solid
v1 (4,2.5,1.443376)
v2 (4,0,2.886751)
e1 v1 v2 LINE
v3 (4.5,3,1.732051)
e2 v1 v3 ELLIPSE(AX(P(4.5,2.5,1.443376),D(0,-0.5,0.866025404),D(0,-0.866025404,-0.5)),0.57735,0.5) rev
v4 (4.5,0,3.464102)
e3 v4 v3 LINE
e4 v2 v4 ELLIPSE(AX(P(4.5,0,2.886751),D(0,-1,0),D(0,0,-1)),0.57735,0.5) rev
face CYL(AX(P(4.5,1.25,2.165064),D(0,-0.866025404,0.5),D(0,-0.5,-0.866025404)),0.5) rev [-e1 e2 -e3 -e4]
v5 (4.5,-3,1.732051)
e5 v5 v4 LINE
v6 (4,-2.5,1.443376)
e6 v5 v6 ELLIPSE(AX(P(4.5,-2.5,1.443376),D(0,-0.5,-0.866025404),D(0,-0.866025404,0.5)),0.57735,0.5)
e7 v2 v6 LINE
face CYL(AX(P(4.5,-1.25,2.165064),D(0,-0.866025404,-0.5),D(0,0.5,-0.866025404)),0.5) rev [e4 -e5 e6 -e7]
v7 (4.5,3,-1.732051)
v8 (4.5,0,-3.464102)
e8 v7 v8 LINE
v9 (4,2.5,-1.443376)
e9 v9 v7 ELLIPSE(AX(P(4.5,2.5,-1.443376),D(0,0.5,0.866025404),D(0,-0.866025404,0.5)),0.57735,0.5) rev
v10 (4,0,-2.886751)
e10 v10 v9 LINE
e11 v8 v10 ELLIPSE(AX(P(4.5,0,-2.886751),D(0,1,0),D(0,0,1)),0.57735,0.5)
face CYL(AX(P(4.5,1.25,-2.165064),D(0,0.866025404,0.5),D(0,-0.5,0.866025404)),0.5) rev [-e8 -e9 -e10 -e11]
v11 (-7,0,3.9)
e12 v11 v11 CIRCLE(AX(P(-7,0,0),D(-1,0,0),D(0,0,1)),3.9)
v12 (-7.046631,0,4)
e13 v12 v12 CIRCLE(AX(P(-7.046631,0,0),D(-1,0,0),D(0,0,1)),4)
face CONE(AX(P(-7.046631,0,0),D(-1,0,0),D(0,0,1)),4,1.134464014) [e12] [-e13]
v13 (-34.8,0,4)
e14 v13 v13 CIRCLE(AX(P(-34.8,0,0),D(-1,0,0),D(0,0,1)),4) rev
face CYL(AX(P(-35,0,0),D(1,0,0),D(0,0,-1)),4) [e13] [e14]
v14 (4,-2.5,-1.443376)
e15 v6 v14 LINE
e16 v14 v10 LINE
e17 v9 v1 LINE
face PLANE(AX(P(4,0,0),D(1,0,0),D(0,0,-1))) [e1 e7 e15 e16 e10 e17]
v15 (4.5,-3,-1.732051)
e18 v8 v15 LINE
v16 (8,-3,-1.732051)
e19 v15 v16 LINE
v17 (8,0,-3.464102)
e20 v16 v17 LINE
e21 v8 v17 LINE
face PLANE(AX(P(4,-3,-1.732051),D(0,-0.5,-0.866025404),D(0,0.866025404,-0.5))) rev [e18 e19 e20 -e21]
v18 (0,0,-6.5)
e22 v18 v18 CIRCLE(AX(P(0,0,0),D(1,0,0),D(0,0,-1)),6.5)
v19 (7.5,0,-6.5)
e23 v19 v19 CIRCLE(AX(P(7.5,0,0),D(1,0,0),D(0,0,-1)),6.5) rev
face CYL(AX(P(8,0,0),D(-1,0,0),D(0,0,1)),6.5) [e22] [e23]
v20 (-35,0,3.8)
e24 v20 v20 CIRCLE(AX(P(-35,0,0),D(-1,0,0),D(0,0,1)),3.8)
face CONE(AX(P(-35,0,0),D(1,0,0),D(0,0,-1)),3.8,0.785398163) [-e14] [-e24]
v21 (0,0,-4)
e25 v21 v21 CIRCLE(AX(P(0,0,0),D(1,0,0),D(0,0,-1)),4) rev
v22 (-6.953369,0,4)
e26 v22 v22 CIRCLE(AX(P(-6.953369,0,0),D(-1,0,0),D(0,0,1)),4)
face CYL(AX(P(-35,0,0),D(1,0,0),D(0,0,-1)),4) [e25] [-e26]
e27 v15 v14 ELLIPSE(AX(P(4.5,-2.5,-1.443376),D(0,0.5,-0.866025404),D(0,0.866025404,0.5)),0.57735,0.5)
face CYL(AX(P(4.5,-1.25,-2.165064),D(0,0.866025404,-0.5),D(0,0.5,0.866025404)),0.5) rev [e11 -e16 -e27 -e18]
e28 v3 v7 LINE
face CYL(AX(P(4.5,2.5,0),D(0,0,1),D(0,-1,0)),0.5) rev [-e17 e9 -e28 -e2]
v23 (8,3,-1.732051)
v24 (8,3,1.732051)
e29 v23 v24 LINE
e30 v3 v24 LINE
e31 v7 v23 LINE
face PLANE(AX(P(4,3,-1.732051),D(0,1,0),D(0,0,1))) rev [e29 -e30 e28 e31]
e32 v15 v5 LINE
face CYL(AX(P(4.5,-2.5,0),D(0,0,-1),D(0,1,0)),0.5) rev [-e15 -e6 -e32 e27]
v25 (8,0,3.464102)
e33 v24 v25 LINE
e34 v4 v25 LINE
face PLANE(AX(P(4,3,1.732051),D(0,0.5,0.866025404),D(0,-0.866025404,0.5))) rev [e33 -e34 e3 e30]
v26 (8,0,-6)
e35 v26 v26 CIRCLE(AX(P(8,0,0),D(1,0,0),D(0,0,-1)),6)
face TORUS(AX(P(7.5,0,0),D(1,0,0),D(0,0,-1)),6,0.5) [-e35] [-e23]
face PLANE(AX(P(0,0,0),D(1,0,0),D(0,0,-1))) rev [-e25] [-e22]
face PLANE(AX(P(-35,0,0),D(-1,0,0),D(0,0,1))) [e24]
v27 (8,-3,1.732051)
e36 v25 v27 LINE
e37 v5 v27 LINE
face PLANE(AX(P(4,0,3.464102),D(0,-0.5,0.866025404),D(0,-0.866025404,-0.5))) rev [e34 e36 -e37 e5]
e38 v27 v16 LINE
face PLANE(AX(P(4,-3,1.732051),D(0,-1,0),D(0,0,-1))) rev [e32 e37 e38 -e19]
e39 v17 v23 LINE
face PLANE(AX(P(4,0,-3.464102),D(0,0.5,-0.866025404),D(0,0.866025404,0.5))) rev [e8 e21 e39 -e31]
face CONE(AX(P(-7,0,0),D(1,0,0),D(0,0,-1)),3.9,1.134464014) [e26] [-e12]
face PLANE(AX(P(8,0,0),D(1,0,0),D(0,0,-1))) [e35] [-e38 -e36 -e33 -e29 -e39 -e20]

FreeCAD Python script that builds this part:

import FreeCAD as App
import Part
import Sketcher
Q = App.Units.Quantity


def edges_at(feature, points):
    """Names of the edges that pass closest to the given points."""
    edges = feature.Shape.Edges
    near = lambda p: min(range(len(edges)), key=lambda i: edges[i].distToShape(Part.Vertex(*p))[0])
    return sorted({f"Edge{near(p) + 1}" for p in points})


def add_polygon(sketch, points):
    """Adds a closed chain of lines whose ends are joined by coincident constraints."""
    first, n = sketch.GeometryCount, len(points)
    for a, b in zip(points, points[1:] + points[:1]):
        sketch.addGeometry(Part.LineSegment(App.Vector(*a, 0), App.Vector(*b, 0)), False)
    for i in range(n):
        sketch.addConstraint(Sketcher.Constraint("Coincident", first + i, 2, first + (i + 1) % n, 1))

doc = App.newDocument("Part")
body = doc.addObject("PartDesign::Body", "Body")

sketch1 = body.newObject("Sketcher::SketchObject", "Sketch")
sketch1.AttachmentSupport = (doc.getObject("YZ_Plane"), [""])
sketch1.MapMode = "FlatFace"
sketch1.addGeometry(Part.Circle(App.Vector(0, 0, 0), App.Vector(0, 0, 1), 6.5), False)
sketch1.addConstraint(Sketcher.Constraint("Coincident", 0, 3, -1, 1))
sketch1.addConstraint(Sketcher.Constraint("Diameter", 0, 13.0))
pad1 = body.newObject("PartDesign::Pad", "Pad")
pad1.Profile = sketch1
pad1.Length = 8
doc.recompute()

fillet = body.newObject("PartDesign::Fillet", "Fillet")
fillet.Base = (pad1, edges_at(pad1, [(8, 0, 6.5)]))
fillet.Radius = 0.5

sketch2 = body.newObject("Sketcher::SketchObject", "Sketch001")
sketch2.AttachmentSupport = (doc.getObject("YZ_Plane"), [""])
sketch2.MapMode = "FlatFace"
sketch2.AttachmentOffset = App.Placement(App.Vector(0, 0, 8), App.Rotation())
add_polygon(sketch2, [(-3, -1.732051), (0, -3.464102), (3, -1.732051), (3, 1.732051), (0, 3.464102), (-3, 1.732051)])
sketch2.addConstraint(Sketcher.Constraint("Vertical", 2))
sketch2.addConstraint(Sketcher.Constraint("Vertical", 5))
sketch2.addConstraint(Sketcher.Constraint("Symmetric", 0, 2, 3, 2, -1, 1))
sketch2.addConstraint(Sketcher.Constraint("Symmetric", 1, 2, 4, 2, -1, 1))
sketch2.addConstraint(Sketcher.Constraint("PointOnObject", 0, 2, -2))
sketch2.addConstraint(Sketcher.Constraint("Parallel", 0, 3))
sketch2.addConstraint(Sketcher.Constraint("Horizontal", 2, 2, 4, 2))
sketch2.addConstraint(Sketcher.Constraint("Angle", 0, Q("-30 deg")))
sketch2.addConstraint(Sketcher.Constraint("DistanceX", -1, 1, 1, 2, 3.0))
sketch2.addConstraint(Sketcher.Constraint("DistanceY", 2, 1, 2, 2, 3.464102))
pocket1 = body.newObject("PartDesign::Pocket", "Pocket")
pocket1.Profile = sketch2
pocket1.Length = 4
doc.recompute()

fillet2 = body.newObject("PartDesign::Fillet", "Fillet001")
fillet2.Base = (pocket1, edges_at(pocket1, [
    (4, -3, 0),
    (4, -1.5, 2.598),
    (4, 1.5, 2.598),
    (4, 3, 0),
    (4, 1.5, -2.598),
    (4, -1.5, -2.598),
]))
fillet2.Radius = 0.5

sketch3 = body.newObject("Sketcher::SketchObject", "Sketch002")
sketch3.AttachmentSupport = (doc.getObject("YZ_Plane"), [""])
sketch3.MapMode = "FlatFace"
sketch3.addGeometry(Part.Circle(App.Vector(0, 0, 0), App.Vector(0, 0, 1), 4), False)
sketch3.addConstraint(Sketcher.Constraint("Coincident", 0, 3, -1, 1))
sketch3.addConstraint(Sketcher.Constraint("Diameter", 0, 8.0))
pad2 = body.newObject("PartDesign::Pad", "Pad001")
pad2.Profile = sketch3
pad2.Length = 35
pad2.Reversed = True

sketch4 = body.newObject("Sketcher::SketchObject", "Sketch003")
sketch4.AttachmentSupport = (doc.getObject("XZ_Plane"), [""])
sketch4.MapMode = "FlatFace"
add_polygon(sketch4, [(-7.046631, -4), (-7, -3.9), (-6.953369, -4)])
sketch4.addConstraint(Sketcher.Constraint("Horizontal", 2))
sketch4.addConstraint(Sketcher.Constraint("Equal", 0, 1))
sketch4.addConstraint(Sketcher.Constraint("Angle", 0, Q("65 deg")))
sketch4.addConstraint(Sketcher.Constraint("DistanceX", 0, 2, -1, 1, 7.0))
sketch4.addConstraint(Sketcher.Constraint("DistanceY", 1, 2, -1, 1, 4.0))
sketch4.addConstraint(Sketcher.Constraint("DistanceY", 0, 2, -1, 1, 3.9))
groove = body.newObject("PartDesign::Groove", "Groove")
groove.Profile = sketch4
groove.ReferenceAxis = (sketch4, ["H_Axis"])
groove.Angle = 360
doc.recompute()

chamfer = body.newObject("PartDesign::Chamfer", "Chamfer")
chamfer.Base = (groove, edges_at(groove, [(-35, 0, 4)]))
chamfer.Size = 0.2

doc.recompute()
